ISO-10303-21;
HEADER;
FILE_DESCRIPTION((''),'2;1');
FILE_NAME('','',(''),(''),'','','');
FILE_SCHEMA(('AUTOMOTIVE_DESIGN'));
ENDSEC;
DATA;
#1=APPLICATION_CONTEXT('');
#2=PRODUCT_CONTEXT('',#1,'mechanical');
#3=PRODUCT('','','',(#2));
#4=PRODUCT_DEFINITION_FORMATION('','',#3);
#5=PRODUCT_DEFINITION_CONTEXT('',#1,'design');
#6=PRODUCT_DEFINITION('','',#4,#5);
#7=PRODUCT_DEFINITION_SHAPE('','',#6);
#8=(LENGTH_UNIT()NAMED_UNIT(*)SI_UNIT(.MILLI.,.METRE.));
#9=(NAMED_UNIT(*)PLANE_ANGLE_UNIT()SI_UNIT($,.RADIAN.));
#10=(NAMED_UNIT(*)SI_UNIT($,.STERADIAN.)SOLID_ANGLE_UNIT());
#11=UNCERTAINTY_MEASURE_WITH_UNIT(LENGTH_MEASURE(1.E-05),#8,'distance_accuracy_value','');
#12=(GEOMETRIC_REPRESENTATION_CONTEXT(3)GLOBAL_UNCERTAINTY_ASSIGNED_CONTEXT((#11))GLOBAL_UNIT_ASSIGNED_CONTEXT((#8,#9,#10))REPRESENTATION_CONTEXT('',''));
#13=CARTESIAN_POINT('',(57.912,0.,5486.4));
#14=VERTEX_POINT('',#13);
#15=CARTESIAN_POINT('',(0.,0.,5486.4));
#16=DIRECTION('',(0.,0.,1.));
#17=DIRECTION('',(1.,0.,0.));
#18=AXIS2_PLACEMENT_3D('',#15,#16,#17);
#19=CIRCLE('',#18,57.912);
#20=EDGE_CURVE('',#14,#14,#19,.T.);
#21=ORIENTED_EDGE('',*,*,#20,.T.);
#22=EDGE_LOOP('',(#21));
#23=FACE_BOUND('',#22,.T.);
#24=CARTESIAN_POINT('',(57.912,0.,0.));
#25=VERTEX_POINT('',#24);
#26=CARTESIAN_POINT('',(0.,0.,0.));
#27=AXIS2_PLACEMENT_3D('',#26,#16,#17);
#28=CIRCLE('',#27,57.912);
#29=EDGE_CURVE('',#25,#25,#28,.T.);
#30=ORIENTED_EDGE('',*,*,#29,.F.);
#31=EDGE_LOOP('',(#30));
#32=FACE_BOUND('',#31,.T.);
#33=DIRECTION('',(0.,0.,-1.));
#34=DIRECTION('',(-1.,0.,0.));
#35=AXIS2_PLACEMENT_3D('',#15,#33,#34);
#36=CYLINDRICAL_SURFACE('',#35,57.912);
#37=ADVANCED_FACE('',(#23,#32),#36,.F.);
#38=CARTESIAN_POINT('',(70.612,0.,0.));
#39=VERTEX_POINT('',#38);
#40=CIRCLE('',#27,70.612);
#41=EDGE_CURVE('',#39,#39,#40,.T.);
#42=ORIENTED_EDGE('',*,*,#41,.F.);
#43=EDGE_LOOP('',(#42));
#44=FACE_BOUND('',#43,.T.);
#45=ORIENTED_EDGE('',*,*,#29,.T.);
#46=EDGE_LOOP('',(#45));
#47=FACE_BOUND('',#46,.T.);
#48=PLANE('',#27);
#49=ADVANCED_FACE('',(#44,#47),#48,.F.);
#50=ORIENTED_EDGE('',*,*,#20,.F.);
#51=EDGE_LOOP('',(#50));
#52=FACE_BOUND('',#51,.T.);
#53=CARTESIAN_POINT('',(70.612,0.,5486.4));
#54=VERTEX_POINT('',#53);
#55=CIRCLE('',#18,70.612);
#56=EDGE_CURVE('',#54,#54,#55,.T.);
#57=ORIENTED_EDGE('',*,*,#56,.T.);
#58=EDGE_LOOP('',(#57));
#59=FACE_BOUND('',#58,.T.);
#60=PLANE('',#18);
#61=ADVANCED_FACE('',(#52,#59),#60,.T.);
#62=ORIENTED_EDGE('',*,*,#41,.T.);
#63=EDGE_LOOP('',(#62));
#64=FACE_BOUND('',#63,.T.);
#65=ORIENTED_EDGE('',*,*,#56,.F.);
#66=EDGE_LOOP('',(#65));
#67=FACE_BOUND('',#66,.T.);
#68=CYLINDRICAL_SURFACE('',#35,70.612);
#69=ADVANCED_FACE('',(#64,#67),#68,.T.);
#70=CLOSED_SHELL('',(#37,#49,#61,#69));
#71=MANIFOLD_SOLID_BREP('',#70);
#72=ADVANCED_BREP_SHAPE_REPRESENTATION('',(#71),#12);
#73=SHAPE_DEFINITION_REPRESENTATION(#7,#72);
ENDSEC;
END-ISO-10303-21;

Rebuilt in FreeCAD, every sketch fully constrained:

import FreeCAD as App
import Part
import Sketcher

V = App.Vector
Q = App.Units.Quantity

doc = App.newDocument("Part")
params = doc.addObject("Spreadsheet::Sheet", "Params")
for row, (alias, value) in enumerate([
    ("sketch1_diameter", "5.56 in"),
    ("sketch1_diameter2", "4.56 in"),
    ("pad1_length", "216 in"),
], start=1):
    params.set(f"A{row}", alias)
    params.set(f"B{row}", "=" + value)
    params.setAlias(f"B{row}", alias)

body = doc.addObject("PartDesign::Body", "Body")

# Sketch on XY plane
sketch1 = doc.addObject("Sketcher::SketchObject", "Sketch")
body.addObject(sketch1)
sketch1.AttachmentSupport = (doc.XY_Plane, [""])
sketch1.MapMode = "FlatFace"
sketch1.addGeometry(Part.Circle(V(0, 0, 0), V(0, 0, 1), 71), False)
sketch1.addGeometry(Part.Circle(V(0, 0, 0), V(0, 0, 1), 58), False)
sketch1.addConstraint(Sketcher.Constraint("Coincident", 0, 3, -1, 1))
sketch1.addConstraint(Sketcher.Constraint("Coincident", 1, 3, -1, 1))
sketch1.addConstraint(Sketcher.Constraint("Diameter", 0, Q("5.56 in")))
sketch1.addConstraint(Sketcher.Constraint("Diameter", 1, Q("4.56 in")))
sketch1.setExpression("Constraints[2]", "Params.sketch1_diameter")
sketch1.setExpression("Constraints[3]", "Params.sketch1_diameter2")
pad1 = doc.addObject("PartDesign::Pad", "Pad")
body.addObject(pad1)
pad1.Profile = sketch1
pad1.setExpression("Length", "Params.pad1_length")

doc.recompute()
